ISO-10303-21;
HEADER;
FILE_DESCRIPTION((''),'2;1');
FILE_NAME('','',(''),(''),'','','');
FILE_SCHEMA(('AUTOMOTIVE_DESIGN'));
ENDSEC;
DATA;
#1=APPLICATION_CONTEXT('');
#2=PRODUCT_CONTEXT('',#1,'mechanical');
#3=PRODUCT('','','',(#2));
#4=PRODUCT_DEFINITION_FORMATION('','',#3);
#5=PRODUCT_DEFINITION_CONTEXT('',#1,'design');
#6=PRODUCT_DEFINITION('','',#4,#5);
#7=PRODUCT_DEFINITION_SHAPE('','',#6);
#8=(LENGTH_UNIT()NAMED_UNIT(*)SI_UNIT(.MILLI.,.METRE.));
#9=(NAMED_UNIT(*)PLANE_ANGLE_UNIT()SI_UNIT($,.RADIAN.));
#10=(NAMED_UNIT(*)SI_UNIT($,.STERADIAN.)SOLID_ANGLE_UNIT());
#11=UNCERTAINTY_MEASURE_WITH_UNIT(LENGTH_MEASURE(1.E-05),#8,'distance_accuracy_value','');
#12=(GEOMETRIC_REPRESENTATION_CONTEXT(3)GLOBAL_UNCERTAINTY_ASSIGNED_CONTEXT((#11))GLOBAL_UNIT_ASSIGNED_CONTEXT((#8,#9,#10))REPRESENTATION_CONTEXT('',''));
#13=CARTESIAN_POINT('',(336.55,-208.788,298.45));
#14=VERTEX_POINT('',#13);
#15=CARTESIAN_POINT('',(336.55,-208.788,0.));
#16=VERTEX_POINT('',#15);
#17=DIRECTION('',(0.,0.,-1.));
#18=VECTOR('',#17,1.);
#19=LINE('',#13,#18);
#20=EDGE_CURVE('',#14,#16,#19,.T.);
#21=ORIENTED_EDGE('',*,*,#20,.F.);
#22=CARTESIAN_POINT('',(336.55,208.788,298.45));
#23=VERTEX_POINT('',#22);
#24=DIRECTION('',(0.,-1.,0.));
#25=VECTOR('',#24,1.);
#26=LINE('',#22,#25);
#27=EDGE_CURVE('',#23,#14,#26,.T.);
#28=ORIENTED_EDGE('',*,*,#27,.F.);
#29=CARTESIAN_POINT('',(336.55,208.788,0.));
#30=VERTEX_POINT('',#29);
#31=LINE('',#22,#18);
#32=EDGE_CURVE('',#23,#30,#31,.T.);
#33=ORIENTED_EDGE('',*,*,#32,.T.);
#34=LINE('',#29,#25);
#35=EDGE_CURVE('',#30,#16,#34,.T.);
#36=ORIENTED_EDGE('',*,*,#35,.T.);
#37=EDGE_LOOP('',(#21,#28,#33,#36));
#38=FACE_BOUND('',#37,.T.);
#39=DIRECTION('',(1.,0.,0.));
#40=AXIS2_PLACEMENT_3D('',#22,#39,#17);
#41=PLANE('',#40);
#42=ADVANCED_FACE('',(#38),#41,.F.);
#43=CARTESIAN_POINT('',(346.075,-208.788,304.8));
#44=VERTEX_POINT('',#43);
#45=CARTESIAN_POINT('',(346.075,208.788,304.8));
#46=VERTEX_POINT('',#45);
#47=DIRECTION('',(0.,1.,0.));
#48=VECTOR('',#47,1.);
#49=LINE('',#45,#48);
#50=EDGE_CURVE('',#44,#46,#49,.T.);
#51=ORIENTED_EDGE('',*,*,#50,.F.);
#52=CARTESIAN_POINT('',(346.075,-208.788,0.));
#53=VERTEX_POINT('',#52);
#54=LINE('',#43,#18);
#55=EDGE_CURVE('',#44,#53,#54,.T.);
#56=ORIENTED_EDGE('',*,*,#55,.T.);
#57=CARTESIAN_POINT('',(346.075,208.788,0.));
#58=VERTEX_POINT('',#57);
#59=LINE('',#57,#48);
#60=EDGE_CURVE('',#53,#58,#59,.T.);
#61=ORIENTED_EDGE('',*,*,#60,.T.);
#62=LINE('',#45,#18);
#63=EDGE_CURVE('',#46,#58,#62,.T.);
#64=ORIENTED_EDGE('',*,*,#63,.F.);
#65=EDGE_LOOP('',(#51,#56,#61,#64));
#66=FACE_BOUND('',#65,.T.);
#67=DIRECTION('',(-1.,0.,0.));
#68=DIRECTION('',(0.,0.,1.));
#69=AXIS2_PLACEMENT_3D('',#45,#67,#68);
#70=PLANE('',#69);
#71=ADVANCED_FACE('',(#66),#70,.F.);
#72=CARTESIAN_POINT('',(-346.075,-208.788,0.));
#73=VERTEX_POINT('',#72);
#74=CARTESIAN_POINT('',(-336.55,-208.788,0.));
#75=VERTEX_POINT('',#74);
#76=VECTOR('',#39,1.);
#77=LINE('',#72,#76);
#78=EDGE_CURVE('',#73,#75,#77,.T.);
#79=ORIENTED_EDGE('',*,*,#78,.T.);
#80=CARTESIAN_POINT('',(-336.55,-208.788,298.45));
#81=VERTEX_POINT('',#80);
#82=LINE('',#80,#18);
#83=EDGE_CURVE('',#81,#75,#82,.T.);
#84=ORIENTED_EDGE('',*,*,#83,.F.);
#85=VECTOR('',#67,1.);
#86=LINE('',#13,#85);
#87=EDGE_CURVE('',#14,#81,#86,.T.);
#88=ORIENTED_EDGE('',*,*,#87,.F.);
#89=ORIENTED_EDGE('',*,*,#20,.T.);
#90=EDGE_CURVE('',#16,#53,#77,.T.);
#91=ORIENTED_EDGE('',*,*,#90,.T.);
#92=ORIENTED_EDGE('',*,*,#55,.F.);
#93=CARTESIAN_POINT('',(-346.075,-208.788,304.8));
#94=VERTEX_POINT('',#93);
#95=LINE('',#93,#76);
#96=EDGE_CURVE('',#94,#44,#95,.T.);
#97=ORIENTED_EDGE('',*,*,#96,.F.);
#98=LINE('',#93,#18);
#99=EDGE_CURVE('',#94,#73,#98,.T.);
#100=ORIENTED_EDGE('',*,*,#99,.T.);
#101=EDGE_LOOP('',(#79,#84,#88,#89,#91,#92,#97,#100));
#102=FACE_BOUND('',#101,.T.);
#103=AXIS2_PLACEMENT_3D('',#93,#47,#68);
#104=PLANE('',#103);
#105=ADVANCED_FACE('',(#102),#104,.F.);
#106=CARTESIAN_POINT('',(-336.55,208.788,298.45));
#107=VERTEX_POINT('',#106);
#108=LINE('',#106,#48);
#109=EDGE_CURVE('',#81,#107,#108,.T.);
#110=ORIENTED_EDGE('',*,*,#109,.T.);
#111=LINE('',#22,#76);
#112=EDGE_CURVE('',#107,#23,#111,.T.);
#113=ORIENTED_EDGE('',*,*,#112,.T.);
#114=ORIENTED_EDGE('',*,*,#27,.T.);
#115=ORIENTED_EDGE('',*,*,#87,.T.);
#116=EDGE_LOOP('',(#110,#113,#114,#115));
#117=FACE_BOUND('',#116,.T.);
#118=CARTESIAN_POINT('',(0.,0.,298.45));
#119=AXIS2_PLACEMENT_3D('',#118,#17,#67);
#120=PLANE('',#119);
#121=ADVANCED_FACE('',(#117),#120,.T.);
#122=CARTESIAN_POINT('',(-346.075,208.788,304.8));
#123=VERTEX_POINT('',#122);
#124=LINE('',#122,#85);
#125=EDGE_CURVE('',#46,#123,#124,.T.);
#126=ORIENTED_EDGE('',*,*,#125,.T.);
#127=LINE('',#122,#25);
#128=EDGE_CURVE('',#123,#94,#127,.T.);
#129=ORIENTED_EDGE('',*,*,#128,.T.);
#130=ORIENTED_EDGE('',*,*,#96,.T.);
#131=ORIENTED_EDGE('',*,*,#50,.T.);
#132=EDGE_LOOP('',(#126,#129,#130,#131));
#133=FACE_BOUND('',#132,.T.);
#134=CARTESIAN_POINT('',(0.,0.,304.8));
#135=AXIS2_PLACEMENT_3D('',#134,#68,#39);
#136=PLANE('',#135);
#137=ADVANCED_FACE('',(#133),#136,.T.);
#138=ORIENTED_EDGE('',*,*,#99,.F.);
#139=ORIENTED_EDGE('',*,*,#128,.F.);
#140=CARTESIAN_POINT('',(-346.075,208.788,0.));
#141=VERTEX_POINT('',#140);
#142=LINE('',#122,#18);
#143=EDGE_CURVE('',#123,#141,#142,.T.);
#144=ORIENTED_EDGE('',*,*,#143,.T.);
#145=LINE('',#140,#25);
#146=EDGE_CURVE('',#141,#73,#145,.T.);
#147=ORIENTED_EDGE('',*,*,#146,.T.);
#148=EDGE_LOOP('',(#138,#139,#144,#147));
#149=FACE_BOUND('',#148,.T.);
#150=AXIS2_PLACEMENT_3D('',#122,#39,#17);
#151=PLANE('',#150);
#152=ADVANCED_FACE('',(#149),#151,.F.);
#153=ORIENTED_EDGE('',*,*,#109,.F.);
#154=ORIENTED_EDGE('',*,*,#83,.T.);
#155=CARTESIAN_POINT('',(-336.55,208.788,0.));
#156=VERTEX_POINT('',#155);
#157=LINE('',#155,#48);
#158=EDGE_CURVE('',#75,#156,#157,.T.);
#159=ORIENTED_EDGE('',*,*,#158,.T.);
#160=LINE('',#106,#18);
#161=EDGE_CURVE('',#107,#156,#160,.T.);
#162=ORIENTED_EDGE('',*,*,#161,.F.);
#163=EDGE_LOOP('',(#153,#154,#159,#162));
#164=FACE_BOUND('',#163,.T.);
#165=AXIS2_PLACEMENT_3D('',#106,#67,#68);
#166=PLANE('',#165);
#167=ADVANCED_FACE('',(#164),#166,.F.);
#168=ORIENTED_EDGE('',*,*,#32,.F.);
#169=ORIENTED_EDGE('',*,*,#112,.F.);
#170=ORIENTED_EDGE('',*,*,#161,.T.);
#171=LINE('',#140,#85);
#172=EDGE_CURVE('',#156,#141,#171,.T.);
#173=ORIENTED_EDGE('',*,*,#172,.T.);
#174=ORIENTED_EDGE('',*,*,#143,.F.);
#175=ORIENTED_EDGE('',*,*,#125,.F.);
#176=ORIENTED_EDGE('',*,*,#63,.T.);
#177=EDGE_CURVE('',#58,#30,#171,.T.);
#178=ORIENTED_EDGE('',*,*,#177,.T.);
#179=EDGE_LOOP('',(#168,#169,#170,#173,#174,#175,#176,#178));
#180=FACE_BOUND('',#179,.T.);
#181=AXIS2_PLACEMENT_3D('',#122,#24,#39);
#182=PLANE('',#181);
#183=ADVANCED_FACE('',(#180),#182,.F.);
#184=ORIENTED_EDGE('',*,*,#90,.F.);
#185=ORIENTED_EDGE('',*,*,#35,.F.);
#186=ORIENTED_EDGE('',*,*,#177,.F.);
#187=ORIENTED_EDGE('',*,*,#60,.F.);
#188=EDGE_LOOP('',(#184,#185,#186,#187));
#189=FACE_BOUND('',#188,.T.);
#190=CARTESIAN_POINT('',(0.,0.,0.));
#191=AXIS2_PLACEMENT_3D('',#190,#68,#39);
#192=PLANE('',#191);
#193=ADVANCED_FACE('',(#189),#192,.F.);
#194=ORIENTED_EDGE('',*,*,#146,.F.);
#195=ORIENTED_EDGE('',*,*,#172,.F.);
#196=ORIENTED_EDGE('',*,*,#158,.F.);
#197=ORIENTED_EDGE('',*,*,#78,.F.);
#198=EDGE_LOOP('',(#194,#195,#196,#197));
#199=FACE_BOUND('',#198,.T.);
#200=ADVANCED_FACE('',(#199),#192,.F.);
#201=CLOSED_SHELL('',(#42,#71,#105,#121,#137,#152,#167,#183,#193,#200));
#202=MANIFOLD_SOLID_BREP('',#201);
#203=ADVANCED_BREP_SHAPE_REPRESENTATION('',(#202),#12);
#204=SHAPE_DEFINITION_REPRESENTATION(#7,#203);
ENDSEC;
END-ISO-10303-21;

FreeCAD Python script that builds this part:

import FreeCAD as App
import Part
import Sketcher
from FreeCAD import Vector
Q = App.Units.Quantity


def add_polygon(sketch, points):
    """Adds a closed chain of lines whose ends are joined by coincident constraints."""
    first, n = sketch.GeometryCount, len(points)
    for a, b in zip(points, points[1:] + points[:1]):
        sketch.addGeometry(Part.LineSegment(App.Vector(*a, 0), App.Vector(*b, 0)), False)
    for i in range(n):
        sketch.addConstraint(Sketcher.Constraint("Coincident", first + i, 2, first + (i + 1) % n, 1))

doc = App.newDocument("Part")
body = doc.addObject("PartDesign::Body", "Body")

# Sketch on XY plane
sketch1 = body.newObject("Sketcher::SketchObject", "Sketch")
sketch1.AttachmentSupport = (doc.getObject("XY_Plane"), [""])
sketch1.MapMode = "FlatFace"
add_polygon(sketch1, [(-346, 209), (-346, -209), (346, -209), (346, 209)])  # lines 0-3
sketch1.addConstraint([
    Sketcher.Constraint("Vertical", 0),
    Sketcher.Constraint("Horizontal", 1),
    Sketcher.Constraint("Vertical", 2),
    Sketcher.Constraint("Horizontal", 3),
    Sketcher.Constraint("Symmetric", 0, 2, 2, 2, -1, 1),
    Sketcher.Constraint("DistanceX", 1, 1, 1, 2, Q("27.25 in")),
    Sketcher.Constraint("DistanceY", 0, 2, 0, 1, Q("16.44 in")),
])
pad1 = body.newObject("PartDesign::Pad", "Pad")
pad1.Profile = sketch1
pad1.Length = Q("12 in")

# Sketch on XY plane
sketch2 = body.newObject("Sketcher::SketchObject", "Sketch001")
sketch2.AttachmentSupport = (doc.getObject("XY_Plane"), [""])
sketch2.MapMode = "FlatFace"
add_polygon(sketch2, [(337, 209), (337, -209), (-337, -209), (-337, 209)])  # lines 0-3
sketch2.addConstraint([
    Sketcher.Constraint("Vertical", 0),
    Sketcher.Constraint("Horizontal", 1),
    Sketcher.Constraint("Vertical", 2),
    Sketcher.Constraint("Horizontal", 3),
    Sketcher.Constraint("Symmetric", 0, 2, 2, 2, -1, 1),
    Sketcher.Constraint("DistanceX", 1, 2, 1, 1, Q("26.5 in")),
    Sketcher.Constraint("DistanceY", 0, 2, 0, 1, Q("16.44 in")),
])
pocket1 = body.newObject("PartDesign::Pocket", "Pocket")
pocket1.Profile = sketch2
pocket1.Length = Q("11.75 in")
pocket1.Reversed = True

doc.recompute()
